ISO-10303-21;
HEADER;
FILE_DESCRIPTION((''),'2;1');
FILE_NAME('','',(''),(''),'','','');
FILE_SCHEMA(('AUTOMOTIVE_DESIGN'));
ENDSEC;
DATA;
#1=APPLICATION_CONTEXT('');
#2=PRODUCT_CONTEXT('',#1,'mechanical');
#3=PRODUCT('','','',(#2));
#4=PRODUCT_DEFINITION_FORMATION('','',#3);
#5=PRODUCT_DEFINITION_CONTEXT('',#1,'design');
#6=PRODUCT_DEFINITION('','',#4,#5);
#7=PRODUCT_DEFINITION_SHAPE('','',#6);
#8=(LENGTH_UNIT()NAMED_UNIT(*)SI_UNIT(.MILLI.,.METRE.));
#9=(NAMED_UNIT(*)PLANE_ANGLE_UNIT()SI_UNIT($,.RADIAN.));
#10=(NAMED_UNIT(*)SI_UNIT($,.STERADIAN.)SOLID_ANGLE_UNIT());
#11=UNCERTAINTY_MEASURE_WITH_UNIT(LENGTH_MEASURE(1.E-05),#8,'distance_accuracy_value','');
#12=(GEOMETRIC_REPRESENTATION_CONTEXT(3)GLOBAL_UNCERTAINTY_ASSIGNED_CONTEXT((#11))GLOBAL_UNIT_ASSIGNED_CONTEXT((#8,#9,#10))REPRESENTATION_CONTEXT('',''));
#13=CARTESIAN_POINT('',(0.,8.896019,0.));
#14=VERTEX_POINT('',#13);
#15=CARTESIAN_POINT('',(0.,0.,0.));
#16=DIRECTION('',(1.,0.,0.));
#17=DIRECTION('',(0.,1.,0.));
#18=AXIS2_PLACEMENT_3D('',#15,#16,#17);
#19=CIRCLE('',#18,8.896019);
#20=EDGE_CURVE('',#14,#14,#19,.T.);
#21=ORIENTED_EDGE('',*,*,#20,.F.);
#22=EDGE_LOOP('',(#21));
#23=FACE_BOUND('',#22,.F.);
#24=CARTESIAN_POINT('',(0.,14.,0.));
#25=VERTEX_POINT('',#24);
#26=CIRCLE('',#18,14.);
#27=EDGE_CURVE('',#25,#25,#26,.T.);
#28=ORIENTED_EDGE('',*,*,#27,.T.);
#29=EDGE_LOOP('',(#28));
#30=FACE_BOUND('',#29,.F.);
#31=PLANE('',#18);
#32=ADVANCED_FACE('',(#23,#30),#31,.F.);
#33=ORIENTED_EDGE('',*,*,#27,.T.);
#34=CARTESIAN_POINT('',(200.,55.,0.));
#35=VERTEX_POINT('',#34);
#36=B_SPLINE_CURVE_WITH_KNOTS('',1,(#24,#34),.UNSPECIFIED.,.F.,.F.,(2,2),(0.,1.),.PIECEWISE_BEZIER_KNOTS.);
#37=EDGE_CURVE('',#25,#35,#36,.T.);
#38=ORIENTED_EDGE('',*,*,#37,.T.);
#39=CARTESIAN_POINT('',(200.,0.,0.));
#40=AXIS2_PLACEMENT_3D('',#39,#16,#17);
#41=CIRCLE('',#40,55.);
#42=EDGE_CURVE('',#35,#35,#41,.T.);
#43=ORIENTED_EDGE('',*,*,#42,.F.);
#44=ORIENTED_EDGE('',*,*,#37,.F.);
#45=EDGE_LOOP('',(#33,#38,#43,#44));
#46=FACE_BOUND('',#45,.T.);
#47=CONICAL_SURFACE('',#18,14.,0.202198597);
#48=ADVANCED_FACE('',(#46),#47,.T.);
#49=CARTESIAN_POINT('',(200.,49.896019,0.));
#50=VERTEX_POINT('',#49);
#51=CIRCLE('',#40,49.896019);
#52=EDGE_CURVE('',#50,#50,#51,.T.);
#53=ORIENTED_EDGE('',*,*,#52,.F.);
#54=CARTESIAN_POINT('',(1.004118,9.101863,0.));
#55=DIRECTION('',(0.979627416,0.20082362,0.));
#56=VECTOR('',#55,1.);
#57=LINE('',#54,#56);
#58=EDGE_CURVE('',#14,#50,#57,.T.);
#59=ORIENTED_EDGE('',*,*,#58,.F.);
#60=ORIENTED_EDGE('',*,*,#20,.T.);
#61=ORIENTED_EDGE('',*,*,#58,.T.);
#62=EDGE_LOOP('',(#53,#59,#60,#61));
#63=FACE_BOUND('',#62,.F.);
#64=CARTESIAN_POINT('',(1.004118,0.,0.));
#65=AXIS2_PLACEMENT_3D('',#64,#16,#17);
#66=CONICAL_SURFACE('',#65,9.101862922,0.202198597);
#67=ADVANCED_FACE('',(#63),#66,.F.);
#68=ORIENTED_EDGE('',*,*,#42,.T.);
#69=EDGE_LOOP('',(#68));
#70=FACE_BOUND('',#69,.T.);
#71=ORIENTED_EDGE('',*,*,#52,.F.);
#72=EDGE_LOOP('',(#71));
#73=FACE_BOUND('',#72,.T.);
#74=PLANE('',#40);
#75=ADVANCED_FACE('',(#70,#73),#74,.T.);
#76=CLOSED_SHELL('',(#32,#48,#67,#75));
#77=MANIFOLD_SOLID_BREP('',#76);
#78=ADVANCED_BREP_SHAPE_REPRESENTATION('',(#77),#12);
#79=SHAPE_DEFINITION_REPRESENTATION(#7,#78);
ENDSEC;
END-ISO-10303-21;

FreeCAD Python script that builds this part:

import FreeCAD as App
import Part
import Sketcher

V = App.Vector


def faces_at(feature, points):
    """Names of the faces that lie closest to the given points."""
    faces = feature.Shape.Faces
    near = lambda p: min(range(len(faces)), key=lambda i: faces[i].distToShape(Part.Vertex(*p))[0])
    return sorted({f"Face{near(p) + 1}" for p in points})

doc = App.newDocument("Part")
params = doc.addObject("Spreadsheet::Sheet", "Params")
for row, (alias, value) in enumerate([
    ("sketch1_diameter", "28 mm"),
    ("sketch2_diameter", "110 mm"),
    ("thickness_wall", "5 mm"),
], start=1):
    params.set(f"A{row}", alias)
    params.set(f"B{row}", "=" + value)
    params.setAlias(f"B{row}", alias)

body = doc.addObject("PartDesign::Body", "Body")

sketch1 = body.newObject("Sketcher::SketchObject", "Sketch")
sketch1.AttachmentSupport = (doc.getObject("YZ_Plane"), [""])
sketch1.MapMode = "FlatFace"
sketch1.addGeometry(Part.Circle(V(0, 0, 0), V(0, 0, 1), 14), False)
sketch1.addConstraint([
    Sketcher.Constraint("Coincident", 0, 3, -1, 1),
    Sketcher.Constraint("Diameter", 0, 28.0),
])
sketch1.setExpression("Constraints[1]", "Params.sketch1_diameter")

sketch2 = body.newObject("Sketcher::SketchObject", "Sketch001")
sketch2.AttachmentSupport = (doc.getObject("YZ_Plane"), [""])
sketch2.MapMode = "FlatFace"
sketch2.AttachmentOffset = App.Placement(V(0, 0, 200), App.Rotation())
sketch2.addGeometry(Part.Circle(V(0, 0, 0), V(0, 0, 1), 55), False)
sketch2.addConstraint([
    Sketcher.Constraint("Coincident", 0, 3, -1, 1),
    Sketcher.Constraint("Diameter", 0, 110.0),
])
sketch2.setExpression("Constraints[1]", "Params.sketch2_diameter")

additiveloft = body.newObject("PartDesign::AdditiveLoft", "AdditiveLoft")
additiveloft.Profile = sketch1
additiveloft.Sections = [sketch2]
doc.recompute()

thickness = body.newObject("PartDesign::Thickness", "Thickness")
thickness.Base = (additiveloft, faces_at(additiveloft, [(200, 0, 0), (0, 0, 0)]))
thickness.setExpression("Value", "Params.thickness_wall")
thickness.Reversed = True
thickness.Join = "Intersection"

doc.recompute()
